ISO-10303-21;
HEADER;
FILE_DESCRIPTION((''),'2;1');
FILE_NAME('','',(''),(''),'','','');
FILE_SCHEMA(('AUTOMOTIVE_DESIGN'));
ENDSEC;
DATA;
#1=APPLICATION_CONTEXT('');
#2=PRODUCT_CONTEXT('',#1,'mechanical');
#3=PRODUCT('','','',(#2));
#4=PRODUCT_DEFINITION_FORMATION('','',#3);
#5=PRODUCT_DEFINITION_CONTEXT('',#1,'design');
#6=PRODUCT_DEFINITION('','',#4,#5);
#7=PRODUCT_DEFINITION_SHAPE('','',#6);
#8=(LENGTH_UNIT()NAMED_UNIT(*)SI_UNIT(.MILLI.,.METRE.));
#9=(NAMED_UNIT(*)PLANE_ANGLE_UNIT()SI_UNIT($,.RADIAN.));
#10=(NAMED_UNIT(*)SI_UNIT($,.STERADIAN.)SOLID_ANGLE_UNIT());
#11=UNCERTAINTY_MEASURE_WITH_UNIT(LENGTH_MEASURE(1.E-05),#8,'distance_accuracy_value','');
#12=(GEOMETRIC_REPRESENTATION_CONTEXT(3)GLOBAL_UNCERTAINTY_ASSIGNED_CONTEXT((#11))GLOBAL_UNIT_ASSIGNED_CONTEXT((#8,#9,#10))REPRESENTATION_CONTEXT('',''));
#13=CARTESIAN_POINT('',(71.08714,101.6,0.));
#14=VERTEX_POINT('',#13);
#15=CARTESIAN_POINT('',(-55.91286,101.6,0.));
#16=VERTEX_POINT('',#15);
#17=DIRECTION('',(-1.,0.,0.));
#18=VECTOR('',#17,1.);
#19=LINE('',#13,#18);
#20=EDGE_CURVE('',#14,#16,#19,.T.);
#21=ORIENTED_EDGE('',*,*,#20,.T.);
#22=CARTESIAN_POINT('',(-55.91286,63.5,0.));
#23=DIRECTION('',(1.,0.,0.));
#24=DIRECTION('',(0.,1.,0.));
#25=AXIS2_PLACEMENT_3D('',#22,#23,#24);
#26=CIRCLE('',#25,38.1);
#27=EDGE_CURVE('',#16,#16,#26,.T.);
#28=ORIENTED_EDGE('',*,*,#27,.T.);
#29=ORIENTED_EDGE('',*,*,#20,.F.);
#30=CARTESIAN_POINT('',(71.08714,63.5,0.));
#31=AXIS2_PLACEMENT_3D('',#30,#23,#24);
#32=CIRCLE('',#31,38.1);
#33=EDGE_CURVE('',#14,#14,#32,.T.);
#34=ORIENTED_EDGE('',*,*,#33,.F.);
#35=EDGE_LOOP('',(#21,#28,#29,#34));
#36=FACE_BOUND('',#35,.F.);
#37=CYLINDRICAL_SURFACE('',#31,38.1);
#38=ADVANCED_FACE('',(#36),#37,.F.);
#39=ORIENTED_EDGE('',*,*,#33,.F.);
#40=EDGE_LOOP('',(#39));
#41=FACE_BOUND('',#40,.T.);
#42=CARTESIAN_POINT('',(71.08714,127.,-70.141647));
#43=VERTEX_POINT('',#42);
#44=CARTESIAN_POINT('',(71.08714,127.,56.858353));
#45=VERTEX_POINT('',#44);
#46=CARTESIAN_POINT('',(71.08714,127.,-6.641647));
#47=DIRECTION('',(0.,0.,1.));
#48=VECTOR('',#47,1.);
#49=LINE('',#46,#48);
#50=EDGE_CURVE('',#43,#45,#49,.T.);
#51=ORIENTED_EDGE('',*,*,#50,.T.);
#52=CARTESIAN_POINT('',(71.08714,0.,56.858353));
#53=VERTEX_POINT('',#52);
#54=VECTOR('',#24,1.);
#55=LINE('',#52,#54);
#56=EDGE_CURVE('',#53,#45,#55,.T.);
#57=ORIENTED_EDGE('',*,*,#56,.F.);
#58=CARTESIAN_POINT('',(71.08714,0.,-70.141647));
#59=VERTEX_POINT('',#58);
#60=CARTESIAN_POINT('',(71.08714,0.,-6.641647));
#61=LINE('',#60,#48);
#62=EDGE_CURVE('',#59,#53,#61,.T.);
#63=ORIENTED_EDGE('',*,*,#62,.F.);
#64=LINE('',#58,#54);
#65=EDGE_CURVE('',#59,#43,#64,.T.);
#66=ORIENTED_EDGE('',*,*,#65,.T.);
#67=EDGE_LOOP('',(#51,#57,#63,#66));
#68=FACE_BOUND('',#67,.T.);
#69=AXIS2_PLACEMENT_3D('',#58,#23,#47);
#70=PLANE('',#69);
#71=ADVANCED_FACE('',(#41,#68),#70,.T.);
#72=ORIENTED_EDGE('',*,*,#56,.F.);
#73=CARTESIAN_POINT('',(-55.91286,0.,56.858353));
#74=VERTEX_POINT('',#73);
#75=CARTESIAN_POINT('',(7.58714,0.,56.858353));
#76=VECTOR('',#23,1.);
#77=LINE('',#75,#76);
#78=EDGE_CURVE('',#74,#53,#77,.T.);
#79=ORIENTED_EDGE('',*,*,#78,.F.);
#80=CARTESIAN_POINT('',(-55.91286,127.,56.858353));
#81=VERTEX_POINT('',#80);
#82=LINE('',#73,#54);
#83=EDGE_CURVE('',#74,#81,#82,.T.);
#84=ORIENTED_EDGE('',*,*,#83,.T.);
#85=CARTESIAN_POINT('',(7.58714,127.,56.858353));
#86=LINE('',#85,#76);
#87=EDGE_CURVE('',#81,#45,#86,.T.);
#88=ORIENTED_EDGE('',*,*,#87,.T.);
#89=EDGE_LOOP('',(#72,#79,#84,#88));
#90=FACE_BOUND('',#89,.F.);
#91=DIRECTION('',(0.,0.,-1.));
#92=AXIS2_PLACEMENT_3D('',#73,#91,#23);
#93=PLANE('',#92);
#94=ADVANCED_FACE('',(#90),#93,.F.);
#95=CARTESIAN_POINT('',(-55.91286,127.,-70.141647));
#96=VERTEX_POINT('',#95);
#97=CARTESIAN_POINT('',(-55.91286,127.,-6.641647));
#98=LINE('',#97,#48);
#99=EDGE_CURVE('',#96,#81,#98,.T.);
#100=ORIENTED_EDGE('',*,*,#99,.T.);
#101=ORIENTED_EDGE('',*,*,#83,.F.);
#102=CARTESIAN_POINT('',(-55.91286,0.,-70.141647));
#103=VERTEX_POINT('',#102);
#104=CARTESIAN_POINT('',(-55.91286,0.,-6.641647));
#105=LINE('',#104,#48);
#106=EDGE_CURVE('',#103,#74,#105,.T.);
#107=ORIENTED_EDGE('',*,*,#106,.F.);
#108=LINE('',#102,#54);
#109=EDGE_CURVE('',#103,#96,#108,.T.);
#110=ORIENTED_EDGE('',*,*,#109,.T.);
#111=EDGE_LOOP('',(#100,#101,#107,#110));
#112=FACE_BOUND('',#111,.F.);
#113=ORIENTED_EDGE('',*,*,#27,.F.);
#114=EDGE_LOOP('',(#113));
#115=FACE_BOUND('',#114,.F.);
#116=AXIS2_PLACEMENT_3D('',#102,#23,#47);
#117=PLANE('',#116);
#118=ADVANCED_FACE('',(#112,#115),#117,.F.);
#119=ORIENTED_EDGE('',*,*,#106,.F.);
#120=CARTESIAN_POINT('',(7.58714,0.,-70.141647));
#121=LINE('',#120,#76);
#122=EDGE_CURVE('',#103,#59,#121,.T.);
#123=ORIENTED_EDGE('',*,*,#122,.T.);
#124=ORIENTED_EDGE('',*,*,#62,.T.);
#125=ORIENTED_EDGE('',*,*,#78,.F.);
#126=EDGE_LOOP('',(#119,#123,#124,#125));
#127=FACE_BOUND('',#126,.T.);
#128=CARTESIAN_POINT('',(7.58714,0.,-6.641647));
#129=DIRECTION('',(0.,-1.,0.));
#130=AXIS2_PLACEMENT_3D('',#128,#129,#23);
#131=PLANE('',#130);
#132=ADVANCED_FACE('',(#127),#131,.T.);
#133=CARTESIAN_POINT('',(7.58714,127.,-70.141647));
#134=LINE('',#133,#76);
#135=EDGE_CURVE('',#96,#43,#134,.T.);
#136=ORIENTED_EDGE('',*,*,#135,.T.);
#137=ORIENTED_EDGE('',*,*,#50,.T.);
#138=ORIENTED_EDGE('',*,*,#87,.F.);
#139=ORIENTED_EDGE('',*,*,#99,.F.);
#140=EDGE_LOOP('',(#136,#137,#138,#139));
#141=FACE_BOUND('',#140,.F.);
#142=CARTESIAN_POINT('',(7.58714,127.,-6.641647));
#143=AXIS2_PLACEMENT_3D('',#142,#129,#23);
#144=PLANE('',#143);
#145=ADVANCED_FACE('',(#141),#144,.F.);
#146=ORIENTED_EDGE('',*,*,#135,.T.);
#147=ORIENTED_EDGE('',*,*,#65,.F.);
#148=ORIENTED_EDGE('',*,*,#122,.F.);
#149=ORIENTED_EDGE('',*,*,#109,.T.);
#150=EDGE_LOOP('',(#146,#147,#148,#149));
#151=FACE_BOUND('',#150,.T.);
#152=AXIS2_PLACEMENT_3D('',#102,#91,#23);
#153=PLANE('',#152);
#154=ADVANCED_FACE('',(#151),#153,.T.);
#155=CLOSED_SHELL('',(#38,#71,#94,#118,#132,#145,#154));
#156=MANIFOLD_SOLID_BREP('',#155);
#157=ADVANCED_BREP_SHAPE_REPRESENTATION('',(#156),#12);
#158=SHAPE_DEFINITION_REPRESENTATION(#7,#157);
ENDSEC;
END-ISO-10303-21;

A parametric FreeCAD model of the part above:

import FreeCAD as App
import Part
import Sketcher

V = App.Vector
Q = App.Units.Quantity


def add_polygon(sketch, points):
    """Adds a closed chain of lines whose ends are joined by coincident constraints."""
    first, n = sketch.GeometryCount, len(points)
    for a, b in zip(points, points[1:] + points[:1]):
        sketch.addGeometry(Part.LineSegment(App.Vector(*a, 0), App.Vector(*b, 0)), False)
    for i in range(n):
        sketch.addConstraint(Sketcher.Constraint("Coincident", first + i, 2, first + (i + 1) % n, 1))

doc = App.newDocument("Part")
params = doc.addObject("Spreadsheet::Sheet", "Params")
for row, (alias, value) in enumerate([
    ("sketch1_width", "5 in"),
    ("pad1_length", "5 in"),
    ("sketch2_diameter", "3 in"),
], start=1):
    params.set(f"A{row}", alias)
    params.set(f"B{row}", "=" + value)
    params.setAlias(f"B{row}", alias)

body = doc.addObject("PartDesign::Body", "Body")

# Sketch on XZ plane
sketch1 = doc.addObject("Sketcher::SketchObject", "Sketch")
body.addObject(sketch1)
sketch1.AttachmentSupport = (doc.XZ_Plane, [""])
sketch1.MapMode = "FlatFace"
add_polygon(sketch1, [(-56, 57), (-56, -70), (71, -70), (71, 57)])  # lines 0-3
sketch1.addConstraint(Sketcher.Constraint("Vertical", 0))
sketch1.addConstraint(Sketcher.Constraint("Horizontal", 1))
sketch1.addConstraint(Sketcher.Constraint("Vertical", 2))
sketch1.addConstraint(Sketcher.Constraint("Horizontal", 3))
sketch1.addConstraint(Sketcher.Constraint("Equal", 3, 0))
sketch1.addConstraint(Sketcher.Constraint("DistanceX", 1, 1, 1, 2, Q("5 in")))
sketch1.addConstraint(Sketcher.Constraint("DistanceX", 0, 2, -1, 1, Q("55.91286 mm")))
sketch1.addConstraint(Sketcher.Constraint("DistanceY", 0, 2, -1, 1, Q("70.141647 mm")))
sketch1.setExpression("Constraints[9]", "Params.sketch1_width")
pad1 = doc.addObject("PartDesign::Pad", "Pad")
body.addObject(pad1)
pad1.Profile = sketch1
pad1.setExpression("Length", "Params.pad1_length")
pad1.Reversed = True

# Sketch on YZ plane
sketch2 = doc.addObject("Sketcher::SketchObject", "Sketch001")
body.addObject(sketch2)
sketch2.AttachmentSupport = (doc.YZ_Plane, [""])
sketch2.MapMode = "FlatFace"
sketch2.AttachmentOffset = App.Placement(V(0, 0, 71.08714), App.Rotation())
sketch2.addGeometry(Part.Circle(V(64, 0, 0), V(0, 0, 1), 38), False)
sketch2.addConstraint(Sketcher.Constraint("PointOnObject", 0, 3, -1))
sketch2.addConstraint(Sketcher.Constraint("Diameter", 0, Q("3 in")))
sketch2.addConstraint(Sketcher.Constraint("DistanceX", -1, 1, 0, 3, Q("2.5 in")))
sketch2.setExpression("Constraints[1]", "Params.sketch2_diameter")
pocket1 = doc.addObject("PartDesign::Pocket", "Pocket")
body.addObject(pocket1)
pocket1.Profile = sketch2
pocket1.Type = "ThroughAll"

doc.recompute()
